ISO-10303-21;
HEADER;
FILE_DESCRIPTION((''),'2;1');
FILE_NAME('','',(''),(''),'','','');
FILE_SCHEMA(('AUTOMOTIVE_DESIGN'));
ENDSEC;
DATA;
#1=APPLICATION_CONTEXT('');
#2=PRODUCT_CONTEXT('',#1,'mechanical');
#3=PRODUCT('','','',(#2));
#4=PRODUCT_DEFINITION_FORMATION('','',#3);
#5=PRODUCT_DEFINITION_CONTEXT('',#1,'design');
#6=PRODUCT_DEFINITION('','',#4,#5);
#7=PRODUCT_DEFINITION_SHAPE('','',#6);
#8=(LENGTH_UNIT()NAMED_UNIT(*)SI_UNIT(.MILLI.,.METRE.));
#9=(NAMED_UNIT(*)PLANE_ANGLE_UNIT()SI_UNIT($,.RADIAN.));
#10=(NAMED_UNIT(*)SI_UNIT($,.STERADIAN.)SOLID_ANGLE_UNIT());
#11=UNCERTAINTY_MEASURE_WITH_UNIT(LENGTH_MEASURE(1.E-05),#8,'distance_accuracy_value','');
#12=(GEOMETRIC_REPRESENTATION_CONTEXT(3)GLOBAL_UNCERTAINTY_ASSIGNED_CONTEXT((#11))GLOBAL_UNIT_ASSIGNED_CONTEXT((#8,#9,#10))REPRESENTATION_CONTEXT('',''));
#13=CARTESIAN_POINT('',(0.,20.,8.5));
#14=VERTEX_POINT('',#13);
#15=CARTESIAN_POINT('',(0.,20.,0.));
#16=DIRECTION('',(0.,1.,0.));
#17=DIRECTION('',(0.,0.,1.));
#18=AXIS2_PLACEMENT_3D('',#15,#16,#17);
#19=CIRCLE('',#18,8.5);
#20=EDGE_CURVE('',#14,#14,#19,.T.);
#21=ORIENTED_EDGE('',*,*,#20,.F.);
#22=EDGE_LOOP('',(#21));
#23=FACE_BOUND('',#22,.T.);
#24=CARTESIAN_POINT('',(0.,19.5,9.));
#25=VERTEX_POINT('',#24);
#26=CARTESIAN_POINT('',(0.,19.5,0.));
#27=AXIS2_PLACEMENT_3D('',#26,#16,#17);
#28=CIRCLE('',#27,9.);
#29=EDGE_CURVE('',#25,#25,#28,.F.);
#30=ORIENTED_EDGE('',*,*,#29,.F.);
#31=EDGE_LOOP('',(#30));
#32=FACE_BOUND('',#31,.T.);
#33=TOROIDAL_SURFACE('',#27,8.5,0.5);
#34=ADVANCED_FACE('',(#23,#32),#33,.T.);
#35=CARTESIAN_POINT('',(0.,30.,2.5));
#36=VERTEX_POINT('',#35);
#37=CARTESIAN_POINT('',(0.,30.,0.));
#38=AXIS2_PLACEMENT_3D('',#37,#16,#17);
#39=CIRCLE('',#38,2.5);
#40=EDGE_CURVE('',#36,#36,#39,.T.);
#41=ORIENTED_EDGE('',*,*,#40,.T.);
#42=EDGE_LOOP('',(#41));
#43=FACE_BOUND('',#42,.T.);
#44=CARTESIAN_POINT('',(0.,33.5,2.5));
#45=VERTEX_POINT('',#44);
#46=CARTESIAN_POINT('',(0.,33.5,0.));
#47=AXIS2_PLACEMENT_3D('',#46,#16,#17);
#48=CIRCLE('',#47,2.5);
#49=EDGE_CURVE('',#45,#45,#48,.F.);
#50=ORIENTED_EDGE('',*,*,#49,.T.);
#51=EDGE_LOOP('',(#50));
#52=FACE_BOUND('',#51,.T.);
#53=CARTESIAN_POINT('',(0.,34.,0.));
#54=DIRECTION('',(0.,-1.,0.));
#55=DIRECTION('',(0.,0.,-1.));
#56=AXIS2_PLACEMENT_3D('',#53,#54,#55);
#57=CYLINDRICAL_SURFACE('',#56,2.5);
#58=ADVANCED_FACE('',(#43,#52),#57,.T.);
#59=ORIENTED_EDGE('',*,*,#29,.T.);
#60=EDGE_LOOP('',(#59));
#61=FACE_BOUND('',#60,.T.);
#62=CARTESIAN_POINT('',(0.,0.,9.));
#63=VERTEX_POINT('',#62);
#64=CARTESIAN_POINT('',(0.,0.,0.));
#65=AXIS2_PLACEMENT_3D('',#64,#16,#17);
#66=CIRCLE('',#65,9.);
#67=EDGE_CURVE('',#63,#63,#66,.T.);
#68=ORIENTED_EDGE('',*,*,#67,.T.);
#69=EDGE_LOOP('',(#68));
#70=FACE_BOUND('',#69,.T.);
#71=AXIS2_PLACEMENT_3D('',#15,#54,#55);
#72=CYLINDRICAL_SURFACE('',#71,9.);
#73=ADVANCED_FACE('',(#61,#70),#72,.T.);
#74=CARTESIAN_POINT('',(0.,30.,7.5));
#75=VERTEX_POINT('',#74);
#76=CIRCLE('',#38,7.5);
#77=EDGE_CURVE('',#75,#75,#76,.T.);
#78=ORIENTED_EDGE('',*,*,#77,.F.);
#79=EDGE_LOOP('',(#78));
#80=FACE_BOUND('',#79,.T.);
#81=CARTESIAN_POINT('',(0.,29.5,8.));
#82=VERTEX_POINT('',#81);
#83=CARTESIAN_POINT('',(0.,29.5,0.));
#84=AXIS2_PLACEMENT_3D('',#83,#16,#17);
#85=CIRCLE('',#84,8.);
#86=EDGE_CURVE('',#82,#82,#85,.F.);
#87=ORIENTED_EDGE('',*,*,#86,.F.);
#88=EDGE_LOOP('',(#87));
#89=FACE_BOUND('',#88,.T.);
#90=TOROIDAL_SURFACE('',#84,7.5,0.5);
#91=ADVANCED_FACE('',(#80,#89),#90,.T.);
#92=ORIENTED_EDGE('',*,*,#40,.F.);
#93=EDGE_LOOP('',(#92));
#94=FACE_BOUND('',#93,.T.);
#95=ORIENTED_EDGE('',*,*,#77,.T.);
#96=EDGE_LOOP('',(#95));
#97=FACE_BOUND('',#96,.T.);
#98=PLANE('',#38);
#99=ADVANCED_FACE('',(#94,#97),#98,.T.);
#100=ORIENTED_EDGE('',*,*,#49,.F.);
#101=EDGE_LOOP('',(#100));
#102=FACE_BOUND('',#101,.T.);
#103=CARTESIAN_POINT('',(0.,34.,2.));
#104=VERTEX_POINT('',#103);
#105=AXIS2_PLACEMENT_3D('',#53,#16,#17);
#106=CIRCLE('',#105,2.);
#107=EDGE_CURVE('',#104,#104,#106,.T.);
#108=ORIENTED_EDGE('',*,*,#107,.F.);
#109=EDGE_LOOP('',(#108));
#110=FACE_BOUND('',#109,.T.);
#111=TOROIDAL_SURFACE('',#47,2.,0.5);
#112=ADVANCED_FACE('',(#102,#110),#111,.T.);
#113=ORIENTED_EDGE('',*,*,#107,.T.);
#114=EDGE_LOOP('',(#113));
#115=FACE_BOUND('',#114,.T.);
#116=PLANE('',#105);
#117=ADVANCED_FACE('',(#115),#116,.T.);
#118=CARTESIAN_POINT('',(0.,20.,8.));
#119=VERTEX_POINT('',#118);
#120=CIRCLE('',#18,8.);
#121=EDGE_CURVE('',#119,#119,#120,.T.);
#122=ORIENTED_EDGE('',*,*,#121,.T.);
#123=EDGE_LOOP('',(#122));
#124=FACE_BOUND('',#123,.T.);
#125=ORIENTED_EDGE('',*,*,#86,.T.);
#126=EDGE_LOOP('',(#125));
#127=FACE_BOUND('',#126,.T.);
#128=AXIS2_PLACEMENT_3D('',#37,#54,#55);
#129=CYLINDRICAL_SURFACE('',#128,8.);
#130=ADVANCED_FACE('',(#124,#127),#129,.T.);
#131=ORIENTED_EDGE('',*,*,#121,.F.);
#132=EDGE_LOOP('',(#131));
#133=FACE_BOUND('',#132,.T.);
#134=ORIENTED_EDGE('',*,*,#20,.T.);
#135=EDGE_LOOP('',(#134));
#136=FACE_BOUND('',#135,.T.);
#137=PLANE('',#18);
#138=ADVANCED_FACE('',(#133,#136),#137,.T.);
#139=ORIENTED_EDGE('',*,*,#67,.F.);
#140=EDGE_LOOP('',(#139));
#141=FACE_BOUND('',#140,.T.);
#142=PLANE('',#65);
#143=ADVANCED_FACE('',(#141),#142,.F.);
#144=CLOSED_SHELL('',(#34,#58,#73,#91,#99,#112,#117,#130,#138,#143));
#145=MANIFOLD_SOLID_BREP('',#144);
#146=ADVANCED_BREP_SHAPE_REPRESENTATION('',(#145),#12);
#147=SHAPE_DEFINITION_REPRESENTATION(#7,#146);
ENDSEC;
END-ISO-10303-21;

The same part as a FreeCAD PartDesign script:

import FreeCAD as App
import Part
import Sketcher

V = App.Vector
Q = App.Units.Quantity


def edges_at(feature, points):
    """Names of the edges that pass closest to the given points."""
    edges = feature.Shape.Edges
    near = lambda p: min(range(len(edges)), key=lambda i: edges[i].distToShape(Part.Vertex(*p))[0])
    return sorted({f"Edge{near(p) + 1}" for p in points})

doc = App.newDocument("Part")
params = doc.addObject("Spreadsheet::Sheet", "Params")
for row, (alias, value) in enumerate([
    ("sketch1_diameter", "18 mm"),
    ("pad1_length", "20 mm"),
    ("sketch2_diameter", "16 mm"),
    ("pad2_length", "10 mm"),
    ("sketch3_diameter", "5 mm"),
    ("pad3_length", "4 mm"),
    ("fillet_radius", "0.5 mm"),
], start=1):
    params.set(f"A{row}", alias)
    params.set(f"B{row}", "=" + value)
    params.setAlias(f"B{row}", alias)

body = doc.addObject("PartDesign::Body", "Body")

# Sketch on XZ plane
sketch1 = body.newObject("Sketcher::SketchObject", "Sketch")
sketch1.AttachmentSupport = (doc.getObject("XZ_Plane"), [""])
sketch1.MapMode = "FlatFace"
sketch1.addGeometry(Part.Circle(V(0, 0, 0), V(0, 0, 1), 9), False)
sketch1.addConstraint(Sketcher.Constraint("Coincident", 0, 3, -1, 1))
sketch1.addConstraint(Sketcher.Constraint("Diameter", 0, Q("18 mm")))
sketch1.setExpression("Constraints[1]", "Params.sketch1_diameter")
pad1 = body.newObject("PartDesign::Pad", "Pad")
pad1.Profile = sketch1
pad1.setExpression("Length", "Params.pad1_length")
pad1.Reversed = True

# Sketch on XZ plane
sketch2 = body.newObject("Sketcher::SketchObject", "Sketch001")
sketch2.AttachmentSupport = (doc.getObject("XZ_Plane"), [""])
sketch2.MapMode = "FlatFace"
sketch2.AttachmentOffset = App.Placement(V(0, 0, -20), App.Rotation())
sketch2.addGeometry(Part.Circle(V(0, 0, 0), V(0, 0, 1), 8), False)
sketch2.addConstraint(Sketcher.Constraint("Coincident", 0, 3, -1, 1))
sketch2.addConstraint(Sketcher.Constraint("Diameter", 0, Q("16 mm")))
sketch2.setExpression("Constraints[1]", "Params.sketch2_diameter")
pad2 = body.newObject("PartDesign::Pad", "Pad001")
pad2.Profile = sketch2
pad2.setExpression("Length", "Params.pad2_length")
pad2.Reversed = True

# Sketch on XZ plane
sketch3 = body.newObject("Sketcher::SketchObject", "Sketch002")
sketch3.AttachmentSupport = (doc.getObject("XZ_Plane"), [""])
sketch3.MapMode = "FlatFace"
sketch3.AttachmentOffset = App.Placement(V(0, 0, -30), App.Rotation())
sketch3.addGeometry(Part.Circle(V(0, 0, 0), V(0, 0, 1), 2.5), False)
sketch3.addConstraint(Sketcher.Constraint("Coincident", 0, 3, -1, 1))
sketch3.addConstraint(Sketcher.Constraint("Diameter", 0, Q("5 mm")))
sketch3.setExpression("Constraints[1]", "Params.sketch3_diameter")
pad3 = body.newObject("PartDesign::Pad", "Pad002")
pad3.Profile = sketch3
pad3.setExpression("Length", "Params.pad3_length")
pad3.Reversed = True
doc.recompute()

fillet = body.newObject("PartDesign::Fillet", "Fillet")
fillet.Base = (pad3, edges_at(pad3, [(0, 34, -2.5), (0, 20, -9), (0, 30, -8)]))
fillet.setExpression("Radius", "Params.fillet_radius")

doc.recompute()
